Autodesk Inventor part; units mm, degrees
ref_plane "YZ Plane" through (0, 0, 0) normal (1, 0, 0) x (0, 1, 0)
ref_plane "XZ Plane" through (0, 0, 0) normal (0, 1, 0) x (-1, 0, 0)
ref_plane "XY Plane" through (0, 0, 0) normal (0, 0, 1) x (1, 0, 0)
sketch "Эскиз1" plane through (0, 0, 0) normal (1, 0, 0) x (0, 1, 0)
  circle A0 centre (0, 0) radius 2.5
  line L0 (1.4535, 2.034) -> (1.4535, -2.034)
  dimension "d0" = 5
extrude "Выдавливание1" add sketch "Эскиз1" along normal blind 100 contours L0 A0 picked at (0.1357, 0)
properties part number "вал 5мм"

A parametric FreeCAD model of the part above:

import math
import FreeCAD as App
import Part
import Sketcher

V = App.Vector

doc = App.newDocument("Part")
body = doc.addObject("PartDesign::Body", "Body")

# Sketch on YZ plane
sketch1 = body.newObject("Sketcher::SketchObject", "Sketch")
sketch1.AttachmentSupport = (doc.getObject("YZ_Plane"), [""])
sketch1.MapMode = "FlatFace"
sketch1.addGeometry(Part.LineSegment(V(1.4535, -2.034, 0), V(1.4535, 2.034, 0)), False)
sketch1.addGeometry(Part.ArcOfCircle(Part.Circle(V(0, 0, 0), V(0, 0, 1), 2.5), math.radians(54.450333), math.radians(305.549667)), False)
sketch1.addConstraint(Sketcher.Constraint("Coincident", 0, 1, 1, 2))
sketch1.addConstraint(Sketcher.Constraint("Coincident", 1, 1, 0, 2))
sketch1.addConstraint(Sketcher.Constraint("Vertical", 0))
sketch1.addConstraint(Sketcher.Constraint("Coincident", 1, 3, -1, 1))
sketch1.addConstraint(Sketcher.Constraint("Radius", 1, 2.5))
sketch1.addConstraint(Sketcher.Constraint("DistanceY", 0, 1, 0, 2, 4.068))
pad1 = body.newObject("PartDesign::Pad", "Pad")
pad1.Profile = sketch1
pad1.Length = 100

doc.recompute()
